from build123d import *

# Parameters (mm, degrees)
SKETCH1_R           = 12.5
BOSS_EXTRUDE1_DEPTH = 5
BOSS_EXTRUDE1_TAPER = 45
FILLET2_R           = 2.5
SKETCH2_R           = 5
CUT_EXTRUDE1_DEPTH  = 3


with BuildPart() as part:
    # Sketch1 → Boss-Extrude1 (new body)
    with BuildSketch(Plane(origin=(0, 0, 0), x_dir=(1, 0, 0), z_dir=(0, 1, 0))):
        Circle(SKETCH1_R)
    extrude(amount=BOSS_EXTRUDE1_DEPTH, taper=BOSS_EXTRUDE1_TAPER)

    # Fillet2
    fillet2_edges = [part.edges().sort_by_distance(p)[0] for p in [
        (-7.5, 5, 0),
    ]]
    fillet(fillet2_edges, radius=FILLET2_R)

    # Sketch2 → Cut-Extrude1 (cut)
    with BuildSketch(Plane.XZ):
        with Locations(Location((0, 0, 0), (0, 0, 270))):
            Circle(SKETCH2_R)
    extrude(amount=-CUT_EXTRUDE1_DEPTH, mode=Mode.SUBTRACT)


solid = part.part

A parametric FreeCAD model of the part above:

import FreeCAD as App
import Part
import Sketcher


def edges_at(feature, points):
    """Names of the edges that pass closest to the given points."""
    edges = feature.Shape.Edges
    near = lambda p: min(range(len(edges)), key=lambda i: edges[i].distToShape(Part.Vertex(*p))[0])
    return sorted({f"Edge{near(p) + 1}" for p in points})

doc = App.newDocument("Part")
body = doc.addObject("PartDesign::Body", "Body")

sketch1 = body.newObject("Sketcher::SketchObject", "Sketch")
sketch1.AttachmentSupport = (doc.getObject("XZ_Plane"), [""])
sketch1.MapMode = "FlatFace"
sketch1.addGeometry(Part.Circle(App.Vector(0, 0, 0), App.Vector(0, 0, 1), 12), False)
sketch1.addConstraint(Sketcher.Constraint("Coincident", 0, 3, -1, 1))
sketch1.addConstraint(Sketcher.Constraint("Diameter", 0, 25.0))
pad1 = body.newObject("PartDesign::Pad", "Pad")
pad1.Profile = sketch1
pad1.Length = 5
pad1.Reversed = True
pad1.TaperAngle = -45
doc.recompute()

fillet = body.newObject("PartDesign::Fillet", "Fillet")
fillet.Base = (pad1, edges_at(pad1, [(-7.5, 5, 0)]))
fillet.Radius = 2.5

sketch2 = body.newObject("Sketcher::SketchObject", "Sketch001")
sketch2.AttachmentSupport = (doc.getObject("XZ_Plane"), [""])
sketch2.MapMode = "FlatFace"
sketch2.addGeometry(Part.Circle(App.Vector(0, 0, 0), App.Vector(0, 0, 1), 5), False)
sketch2.addConstraint(Sketcher.Constraint("Coincident", 0, 3, -1, 1))
sketch2.addConstraint(Sketcher.Constraint("Diameter", 0, 10.0))
pocket1 = body.newObject("PartDesign::Pocket", "Pocket")
pocket1.Profile = sketch2
pocket1.Length = 3

doc.recompute()
